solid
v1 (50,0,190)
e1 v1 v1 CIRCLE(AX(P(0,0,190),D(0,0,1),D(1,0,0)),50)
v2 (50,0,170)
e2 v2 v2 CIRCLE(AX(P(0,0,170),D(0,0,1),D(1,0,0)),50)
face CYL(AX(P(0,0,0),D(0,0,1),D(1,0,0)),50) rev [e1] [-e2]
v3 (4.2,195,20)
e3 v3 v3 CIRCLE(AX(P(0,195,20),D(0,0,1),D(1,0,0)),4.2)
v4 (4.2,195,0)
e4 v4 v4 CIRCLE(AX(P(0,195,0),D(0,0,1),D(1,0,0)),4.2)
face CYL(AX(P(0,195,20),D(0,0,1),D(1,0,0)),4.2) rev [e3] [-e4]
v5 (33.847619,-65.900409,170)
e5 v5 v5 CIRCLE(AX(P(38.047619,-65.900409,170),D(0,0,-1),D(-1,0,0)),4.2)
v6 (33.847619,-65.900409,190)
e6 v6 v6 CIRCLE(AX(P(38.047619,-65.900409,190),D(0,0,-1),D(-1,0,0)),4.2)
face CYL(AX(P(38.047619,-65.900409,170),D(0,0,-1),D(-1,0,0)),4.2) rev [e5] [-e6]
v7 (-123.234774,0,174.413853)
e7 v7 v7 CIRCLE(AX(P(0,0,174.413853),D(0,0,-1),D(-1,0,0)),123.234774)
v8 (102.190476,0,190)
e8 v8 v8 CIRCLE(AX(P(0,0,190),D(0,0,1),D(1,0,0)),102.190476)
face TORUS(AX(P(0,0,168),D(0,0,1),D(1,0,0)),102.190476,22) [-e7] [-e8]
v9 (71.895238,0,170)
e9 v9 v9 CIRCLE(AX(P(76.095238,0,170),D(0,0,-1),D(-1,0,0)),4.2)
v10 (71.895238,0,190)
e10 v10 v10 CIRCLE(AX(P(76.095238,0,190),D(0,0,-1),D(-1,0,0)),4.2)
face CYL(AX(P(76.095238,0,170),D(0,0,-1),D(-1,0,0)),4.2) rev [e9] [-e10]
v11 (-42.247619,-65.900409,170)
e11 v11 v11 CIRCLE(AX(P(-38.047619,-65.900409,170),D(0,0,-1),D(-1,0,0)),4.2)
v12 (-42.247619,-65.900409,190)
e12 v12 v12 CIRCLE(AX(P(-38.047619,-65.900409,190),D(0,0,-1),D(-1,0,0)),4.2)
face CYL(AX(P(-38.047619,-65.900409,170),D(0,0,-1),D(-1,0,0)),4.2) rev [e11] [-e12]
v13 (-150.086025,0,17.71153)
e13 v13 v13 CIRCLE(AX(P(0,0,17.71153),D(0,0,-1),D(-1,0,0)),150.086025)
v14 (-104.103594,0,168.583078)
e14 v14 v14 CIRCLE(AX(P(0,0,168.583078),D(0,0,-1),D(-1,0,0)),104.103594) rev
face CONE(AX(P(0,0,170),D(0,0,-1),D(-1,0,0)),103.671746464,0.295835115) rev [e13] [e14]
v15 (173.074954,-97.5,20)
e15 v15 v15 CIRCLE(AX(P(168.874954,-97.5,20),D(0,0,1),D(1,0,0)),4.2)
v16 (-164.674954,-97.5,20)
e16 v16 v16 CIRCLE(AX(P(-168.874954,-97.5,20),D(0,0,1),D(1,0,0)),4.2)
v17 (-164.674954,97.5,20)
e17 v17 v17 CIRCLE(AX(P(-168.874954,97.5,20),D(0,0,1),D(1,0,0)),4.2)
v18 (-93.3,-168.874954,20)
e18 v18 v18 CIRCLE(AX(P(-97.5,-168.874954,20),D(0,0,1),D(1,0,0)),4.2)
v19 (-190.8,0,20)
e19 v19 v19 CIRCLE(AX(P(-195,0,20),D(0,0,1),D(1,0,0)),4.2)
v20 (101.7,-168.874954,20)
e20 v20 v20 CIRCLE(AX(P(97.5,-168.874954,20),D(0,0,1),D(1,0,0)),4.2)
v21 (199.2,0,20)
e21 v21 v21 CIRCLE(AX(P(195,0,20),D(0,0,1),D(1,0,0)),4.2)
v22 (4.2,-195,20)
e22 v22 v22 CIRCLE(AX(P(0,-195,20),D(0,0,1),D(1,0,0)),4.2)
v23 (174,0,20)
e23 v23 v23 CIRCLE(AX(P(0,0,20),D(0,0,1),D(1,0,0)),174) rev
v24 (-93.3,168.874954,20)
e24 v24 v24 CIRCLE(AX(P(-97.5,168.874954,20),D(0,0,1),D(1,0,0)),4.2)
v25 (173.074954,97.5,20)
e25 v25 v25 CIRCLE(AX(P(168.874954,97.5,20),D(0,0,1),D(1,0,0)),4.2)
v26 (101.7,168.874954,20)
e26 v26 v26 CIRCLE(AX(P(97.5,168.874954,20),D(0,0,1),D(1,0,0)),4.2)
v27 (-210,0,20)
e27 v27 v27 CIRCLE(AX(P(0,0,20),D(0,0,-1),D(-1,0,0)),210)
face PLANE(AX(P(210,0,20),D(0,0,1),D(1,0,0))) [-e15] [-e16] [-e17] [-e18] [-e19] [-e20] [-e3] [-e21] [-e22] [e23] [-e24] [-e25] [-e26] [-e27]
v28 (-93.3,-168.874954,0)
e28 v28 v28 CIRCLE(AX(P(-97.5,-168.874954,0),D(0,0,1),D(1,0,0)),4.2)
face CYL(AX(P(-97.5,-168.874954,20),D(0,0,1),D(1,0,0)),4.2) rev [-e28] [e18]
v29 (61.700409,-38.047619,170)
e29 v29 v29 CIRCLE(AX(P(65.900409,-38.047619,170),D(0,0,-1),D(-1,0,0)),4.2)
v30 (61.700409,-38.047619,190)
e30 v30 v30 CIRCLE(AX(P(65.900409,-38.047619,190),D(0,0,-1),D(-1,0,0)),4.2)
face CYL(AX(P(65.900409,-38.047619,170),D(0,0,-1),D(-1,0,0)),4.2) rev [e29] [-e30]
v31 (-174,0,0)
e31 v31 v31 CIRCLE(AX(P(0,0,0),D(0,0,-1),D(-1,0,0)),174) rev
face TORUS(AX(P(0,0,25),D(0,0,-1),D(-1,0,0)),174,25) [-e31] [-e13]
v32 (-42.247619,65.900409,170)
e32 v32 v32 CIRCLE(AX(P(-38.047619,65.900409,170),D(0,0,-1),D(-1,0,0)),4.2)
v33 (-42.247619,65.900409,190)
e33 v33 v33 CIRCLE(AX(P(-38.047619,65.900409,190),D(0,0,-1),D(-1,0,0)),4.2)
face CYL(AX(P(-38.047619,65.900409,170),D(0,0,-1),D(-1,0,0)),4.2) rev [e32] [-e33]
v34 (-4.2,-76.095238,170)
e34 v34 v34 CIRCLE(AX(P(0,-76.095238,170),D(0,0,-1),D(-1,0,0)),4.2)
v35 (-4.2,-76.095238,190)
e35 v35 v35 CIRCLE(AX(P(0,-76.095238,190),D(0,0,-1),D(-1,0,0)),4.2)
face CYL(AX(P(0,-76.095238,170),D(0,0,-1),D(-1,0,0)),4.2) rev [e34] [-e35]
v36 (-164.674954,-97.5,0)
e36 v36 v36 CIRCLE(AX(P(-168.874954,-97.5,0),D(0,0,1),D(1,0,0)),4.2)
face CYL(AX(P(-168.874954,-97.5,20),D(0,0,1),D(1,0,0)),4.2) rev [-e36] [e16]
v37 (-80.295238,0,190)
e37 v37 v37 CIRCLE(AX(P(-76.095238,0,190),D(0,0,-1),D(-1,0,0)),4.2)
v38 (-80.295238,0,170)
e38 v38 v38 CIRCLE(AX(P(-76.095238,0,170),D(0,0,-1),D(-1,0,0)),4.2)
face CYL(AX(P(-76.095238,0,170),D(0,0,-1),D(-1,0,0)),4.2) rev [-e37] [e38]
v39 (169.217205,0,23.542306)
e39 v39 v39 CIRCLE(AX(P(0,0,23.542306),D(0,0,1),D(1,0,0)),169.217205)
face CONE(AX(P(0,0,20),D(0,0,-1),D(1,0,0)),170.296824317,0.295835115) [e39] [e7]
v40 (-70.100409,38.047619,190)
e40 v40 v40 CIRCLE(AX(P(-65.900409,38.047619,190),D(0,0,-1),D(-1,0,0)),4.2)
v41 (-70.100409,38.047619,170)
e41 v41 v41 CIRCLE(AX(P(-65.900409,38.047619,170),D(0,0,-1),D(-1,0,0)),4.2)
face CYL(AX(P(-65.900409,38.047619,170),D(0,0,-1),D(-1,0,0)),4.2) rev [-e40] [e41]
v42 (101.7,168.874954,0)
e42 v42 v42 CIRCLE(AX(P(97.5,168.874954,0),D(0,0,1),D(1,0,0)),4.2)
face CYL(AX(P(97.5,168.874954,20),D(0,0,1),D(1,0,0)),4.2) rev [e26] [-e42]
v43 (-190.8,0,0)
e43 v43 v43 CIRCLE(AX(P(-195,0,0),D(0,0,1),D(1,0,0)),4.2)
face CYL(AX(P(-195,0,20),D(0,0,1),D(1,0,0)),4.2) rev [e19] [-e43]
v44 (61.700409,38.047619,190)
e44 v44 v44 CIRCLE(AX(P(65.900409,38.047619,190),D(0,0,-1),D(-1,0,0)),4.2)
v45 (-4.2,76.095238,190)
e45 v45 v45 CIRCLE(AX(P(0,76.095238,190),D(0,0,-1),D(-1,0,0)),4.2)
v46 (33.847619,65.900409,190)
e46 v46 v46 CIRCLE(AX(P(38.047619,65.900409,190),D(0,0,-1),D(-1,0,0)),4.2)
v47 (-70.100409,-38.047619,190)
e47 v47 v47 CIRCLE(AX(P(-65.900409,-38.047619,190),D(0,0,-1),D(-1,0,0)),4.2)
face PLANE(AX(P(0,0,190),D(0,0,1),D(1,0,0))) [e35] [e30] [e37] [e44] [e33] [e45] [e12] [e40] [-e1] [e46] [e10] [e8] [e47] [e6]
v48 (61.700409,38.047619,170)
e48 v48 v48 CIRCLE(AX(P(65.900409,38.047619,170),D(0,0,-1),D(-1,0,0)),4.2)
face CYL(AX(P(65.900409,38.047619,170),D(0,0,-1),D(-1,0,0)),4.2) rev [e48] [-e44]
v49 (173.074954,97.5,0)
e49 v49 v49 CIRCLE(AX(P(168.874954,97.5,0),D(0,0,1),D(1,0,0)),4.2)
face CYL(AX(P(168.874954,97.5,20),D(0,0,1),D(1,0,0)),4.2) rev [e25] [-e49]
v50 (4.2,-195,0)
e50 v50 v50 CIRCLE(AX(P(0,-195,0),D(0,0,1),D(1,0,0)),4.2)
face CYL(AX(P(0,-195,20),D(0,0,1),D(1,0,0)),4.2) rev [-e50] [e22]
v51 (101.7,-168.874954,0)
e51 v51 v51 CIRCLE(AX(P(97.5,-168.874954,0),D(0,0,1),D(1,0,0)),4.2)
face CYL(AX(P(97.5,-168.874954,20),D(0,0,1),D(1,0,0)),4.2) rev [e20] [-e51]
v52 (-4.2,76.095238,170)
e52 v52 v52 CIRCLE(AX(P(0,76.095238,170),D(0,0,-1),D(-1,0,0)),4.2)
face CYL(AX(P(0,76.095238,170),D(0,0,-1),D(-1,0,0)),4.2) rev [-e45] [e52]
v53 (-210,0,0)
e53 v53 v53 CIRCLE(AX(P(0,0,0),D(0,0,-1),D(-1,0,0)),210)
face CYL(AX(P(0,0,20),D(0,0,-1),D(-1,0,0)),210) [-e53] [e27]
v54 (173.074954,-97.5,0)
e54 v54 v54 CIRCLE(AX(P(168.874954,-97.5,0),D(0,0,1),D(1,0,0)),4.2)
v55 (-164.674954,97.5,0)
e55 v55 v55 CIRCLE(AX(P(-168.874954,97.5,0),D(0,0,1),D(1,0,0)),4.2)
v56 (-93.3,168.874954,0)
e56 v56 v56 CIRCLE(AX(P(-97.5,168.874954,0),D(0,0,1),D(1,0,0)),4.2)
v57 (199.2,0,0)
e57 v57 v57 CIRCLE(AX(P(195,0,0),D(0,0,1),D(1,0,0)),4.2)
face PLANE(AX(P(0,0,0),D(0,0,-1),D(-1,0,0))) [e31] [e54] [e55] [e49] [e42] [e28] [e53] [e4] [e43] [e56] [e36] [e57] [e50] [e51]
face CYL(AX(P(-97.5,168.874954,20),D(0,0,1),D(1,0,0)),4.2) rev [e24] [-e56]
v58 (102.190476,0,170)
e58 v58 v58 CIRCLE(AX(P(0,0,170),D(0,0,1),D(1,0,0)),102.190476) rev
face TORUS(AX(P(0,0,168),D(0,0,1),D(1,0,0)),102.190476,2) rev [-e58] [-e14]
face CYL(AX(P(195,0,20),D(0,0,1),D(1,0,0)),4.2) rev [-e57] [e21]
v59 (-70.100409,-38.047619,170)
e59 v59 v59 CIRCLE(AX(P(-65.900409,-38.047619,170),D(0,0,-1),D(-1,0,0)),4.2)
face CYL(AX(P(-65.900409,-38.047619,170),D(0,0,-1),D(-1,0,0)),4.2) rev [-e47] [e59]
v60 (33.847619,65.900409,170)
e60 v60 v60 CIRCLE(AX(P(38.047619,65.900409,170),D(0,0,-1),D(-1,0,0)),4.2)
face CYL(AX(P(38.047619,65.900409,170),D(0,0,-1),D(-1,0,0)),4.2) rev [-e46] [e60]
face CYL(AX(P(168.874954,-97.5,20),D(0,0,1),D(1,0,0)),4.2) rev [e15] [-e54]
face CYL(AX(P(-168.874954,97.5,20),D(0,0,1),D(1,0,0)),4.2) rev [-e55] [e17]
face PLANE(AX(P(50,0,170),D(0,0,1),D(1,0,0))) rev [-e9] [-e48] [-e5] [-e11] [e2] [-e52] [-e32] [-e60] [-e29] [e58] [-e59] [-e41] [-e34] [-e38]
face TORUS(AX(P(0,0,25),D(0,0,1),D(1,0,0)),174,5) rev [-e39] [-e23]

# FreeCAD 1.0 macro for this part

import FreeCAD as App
import Part
import Sketcher


def edges_at(feature, points):
    """Names of the edges that pass closest to the given points."""
    edges = feature.Shape.Edges
    near = lambda p: min(range(len(edges)), key=lambda i: edges[i].distToShape(Part.Vertex(*p))[0])
    return sorted({f"Edge{near(p) + 1}" for p in points})

doc = App.newDocument("Part")
body = doc.addObject("PartDesign::Body", "Body")

# Sketch on XZ plane
sketch1 = body.newObject("Sketcher::SketchObject", "Sketch")
sketch1.AttachmentSupport = (doc.getObject("XZ_Plane"), [""])
sketch1.MapMode = "FlatFace"
sketch1.addGeometry([
    Part.LineSegment(App.Vector(0, 20, 0), App.Vector(0, 0, 0)),
    Part.LineSegment(App.Vector(0, 0, 0), App.Vector(210, 0, 0)),
    Part.LineSegment(App.Vector(210, 0, 0), App.Vector(210, 20, 0)),
    Part.LineSegment(App.Vector(210, 20, 0), App.Vector(0, 20, 0)),
], False)
sketch1.addConstraint([
    Sketcher.Constraint("Coincident", 0, 2, 1, 1),
    Sketcher.Constraint("Coincident", 1, 2, 2, 1),
    Sketcher.Constraint("Coincident", 2, 2, 3, 1),
    Sketcher.Constraint("Coincident", 3, 2, 0, 1),
    Sketcher.Constraint("Vertical", 0),
    Sketcher.Constraint("Horizontal", 1),
    Sketcher.Constraint("Vertical", 2),
    Sketcher.Constraint("Horizontal", 3),
    Sketcher.Constraint("Coincident", 0, 2, -1, 1),
    Sketcher.Constraint("DistanceX", 1, 1, 1, 2, 210.0),
    Sketcher.Constraint("DistanceY", 0, 2, 0, 1, 20.0),
])
revolution = body.newObject("PartDesign::Revolution", "Revolution")
revolution.Profile = sketch1
revolution.ReferenceAxis = (sketch1, ["V_Axis"])
revolution.Angle = 360

# Sketch on XY plane
sketch2 = body.newObject("Sketcher::SketchObject", "Sketch001")
sketch2.AttachmentSupport = (doc.getObject("XY_Plane"), [""])
sketch2.MapMode = "FlatFace"
sketch2.AttachmentOffset = App.Placement(App.Vector(0, 0, 20), App.Rotation())
sketch2.addGeometry(Part.Circle(App.Vector(0, 0, 0), App.Vector(0, 0, 1), 170), False)
sketch2.addConstraint([
    Sketcher.Constraint("Coincident", 0, 3, -1, 1),
    Sketcher.Constraint("Diameter", 0, 340.593649),
])
pad1 = body.newObject("PartDesign::Pad", "Pad")
pad1.Profile = sketch2
pad1.Length = 170
pad1.TaperAngle = -16.950104

# Sketch on XZ plane
sketch3 = body.newObject("Sketcher::SketchObject", "Sketch002")
sketch3.AttachmentSupport = (doc.getObject("XZ_Plane"), [""])
sketch3.MapMode = "FlatFace"
sketch3.addGeometry([
    Part.LineSegment(App.Vector(155, 0, 0), App.Vector(0, 0, 0)),  # 0
    Part.LineSegment(App.Vector(0, 0, 0), App.Vector(0, 190, 0)),  # 1
    Part.LineSegment(App.Vector(0, 190, 0), App.Vector(50, 190, 0)),  # 2
    Part.LineSegment(App.Vector(50, 190, 0), App.Vector(50, 170, 0)),  # 3
    Part.LineSegment(App.Vector(50, 170, 0), App.Vector(104, 170, 0)),  # 4
    Part.LineSegment(App.Vector(104, 170, 0), App.Vector(155, 0, 0)),  # 5
], False)
sketch3.addConstraint([
    Sketcher.Constraint("Coincident", 0, 2, 1, 1),
    Sketcher.Constraint("Coincident", 1, 2, 2, 1),
    Sketcher.Constraint("Coincident", 2, 2, 3, 1),
    Sketcher.Constraint("Coincident", 3, 2, 4, 1),
    Sketcher.Constraint("Coincident", 4, 2, 5, 1),
    Sketcher.Constraint("Coincident", 5, 2, 0, 1),
    Sketcher.Constraint("Horizontal", 0),
    Sketcher.Constraint("Vertical", 1),
    Sketcher.Constraint("Horizontal", 2),
    Sketcher.Constraint("Vertical", 3),
    Sketcher.Constraint("Horizontal", 4),
    Sketcher.Constraint("Coincident", 0, 2, -1, 1),
    Sketcher.Constraint("DistanceX", 2, 1, 2, 2, 50.0),
    Sketcher.Constraint("DistanceY", 1, 1, 1, 2, 190.0),
    Sketcher.Constraint("DistanceY", 3, 2, 3, 1, 20.0),
    Sketcher.Constraint("DistanceX", 0, 2, 0, 1, 155.484122),
    Sketcher.Constraint("Distance", 5, 177.720348),
])
groove = body.newObject("PartDesign::Groove", "Groove")
groove.Profile = sketch3
groove.ReferenceAxis = (sketch3, ["V_Axis"])
groove.Angle = 360

# Sketch on XY plane
sketch4 = body.newObject("Sketcher::SketchObject", "Sketch003")
sketch4.AttachmentSupport = (doc.getObject("XY_Plane"), [""])
sketch4.MapMode = "FlatFace"
sketch4.AttachmentOffset = App.Placement(App.Vector(0, 0, 20), App.Rotation())
sketch4.addGeometry([
    Part.Circle(App.Vector(0, 195, 0), App.Vector(0, 0, 1), 4.2),  # 0
    Part.Circle(App.Vector(97.5, 168.9, 0), App.Vector(0, 0, 1), 4.2),  # 1
    Part.Circle(App.Vector(168.9, 97.5, 0), App.Vector(0, 0, 1), 4.2),  # 2
    Part.Circle(App.Vector(195, 0, 0), App.Vector(0, 0, 1), 4.2),  # 3
    Part.Circle(App.Vector(168.9, -97.5, 0), App.Vector(0, 0, 1), 4.2),  # 4
    Part.Circle(App.Vector(97.5, -168.9, 0), App.Vector(0, 0, 1), 4.2),  # 5
    Part.Circle(App.Vector(0, -195, 0), App.Vector(0, 0, 1), 4.2),  # 6
    Part.Circle(App.Vector(-97.5, -168.9, 0), App.Vector(0, 0, 1), 4.2),  # 7
    Part.Circle(App.Vector(-168.9, -97.5, 0), App.Vector(0, 0, 1), 4.2),  # 8
    Part.Circle(App.Vector(-195, 0, 0), App.Vector(0, 0, 1), 4.2),  # 9
    Part.Circle(App.Vector(-168.9, 97.5, 0), App.Vector(0, 0, 1), 4.2),  # 10
    Part.Circle(App.Vector(-97.5, 168.9, 0), App.Vector(0, 0, 1), 4.2),  # 11
], False)
sketch4.addConstraint([
    Sketcher.Constraint("Equal", 0, 1),
    Sketcher.Constraint("Equal", 1, 2),
    Sketcher.Constraint("Equal", 2, 3),
    Sketcher.Constraint("Equal", 3, 4),
    Sketcher.Constraint("Equal", 4, 5),
    Sketcher.Constraint("Equal", 5, 6),
    Sketcher.Constraint("Equal", 6, 7),
    Sketcher.Constraint("Equal", 7, 8),
    Sketcher.Constraint("Equal", 8, 9),
    Sketcher.Constraint("Equal", 9, 10),
    Sketcher.Constraint("Equal", 10, 11),
    Sketcher.Constraint("Symmetric", 0, 3, 6, 3, -1, 1),
    Sketcher.Constraint("Symmetric", 1, 3, 7, 3, -1, 1),
    Sketcher.Constraint("Symmetric", 2, 3, 8, 3, -1, 1),
    Sketcher.Constraint("Symmetric", 3, 3, 9, 3, -1, 1),
    Sketcher.Constraint("Symmetric", 4, 3, 10, 3, -1, 1),
    Sketcher.Constraint("Symmetric", 5, 3, 11, 3, -1, 1),
    Sketcher.Constraint("Symmetric", 5, 3, 7, 3, -2),
    Sketcher.Constraint("Symmetric", 4, 3, 8, 3, -2),
    Sketcher.Constraint("PointOnObject", 0, 3, -2),
    Sketcher.Constraint("PointOnObject", 3, 3, -1),
    Sketcher.Constraint("Diameter", 0, 8.4),
    Sketcher.Constraint("DistanceY", -1, 1, 0, 3, 195.0),
    Sketcher.Constraint("DistanceX", -1, 1, 3, 3, 195.0),
    Sketcher.Constraint("DistanceY", 4, 3, 2, 3, 195.0),
    Sketcher.Constraint("DistanceX", 7, 3, 5, 3, 195.0),
    Sketcher.Constraint("DistanceY", -1, 1, 1, 3, 168.874954),
    Sketcher.Constraint("DistanceX", -1, 1, 2, 3, 168.874954),
])
doc.recompute()
hole = body.newObject("PartDesign::Hole", "Hole")
hole.Profile = sketch4
hole.ThreadType = "None"
hole.Diameter = 8.4
hole.DepthType = "ThroughAll"

# Sketch on XY plane
sketch5 = body.newObject("Sketcher::SketchObject", "Sketch004")
sketch5.AttachmentSupport = (doc.getObject("XY_Plane"), [""])
sketch5.MapMode = "FlatFace"
sketch5.AttachmentOffset = App.Placement(App.Vector(0, 0, 170), App.Rotation())
sketch5.addGeometry([
    Part.Circle(App.Vector(0, 76.1, 0), App.Vector(0, 0, 1), 4.2),  # 0
    Part.Circle(App.Vector(-38, 65.9, 0), App.Vector(0, 0, 1), 4.2),  # 1
    Part.Circle(App.Vector(-65.9, 38, 0), App.Vector(0, 0, 1), 4.2),  # 2
    Part.Circle(App.Vector(-76.1, 0, 0), App.Vector(0, 0, 1), 4.2),  # 3
    Part.Circle(App.Vector(-65.9, -38, 0), App.Vector(0, 0, 1), 4.2),  # 4
    Part.Circle(App.Vector(-38, -65.9, 0), App.Vector(0, 0, 1), 4.2),  # 5
    Part.Circle(App.Vector(0, -76.1, 0), App.Vector(0, 0, 1), 4.2),  # 6
    Part.Circle(App.Vector(38, -65.9, 0), App.Vector(0, 0, 1), 4.2),  # 7
    Part.Circle(App.Vector(65.9, -38, 0), App.Vector(0, 0, 1), 4.2),  # 8
    Part.Circle(App.Vector(76.1, 0, 0), App.Vector(0, 0, 1), 4.2),  # 9
    Part.Circle(App.Vector(65.9, 38, 0), App.Vector(0, 0, 1), 4.2),  # 10
    Part.Circle(App.Vector(38, 65.9, 0), App.Vector(0, 0, 1), 4.2),  # 11
], False)
sketch5.addConstraint([
    Sketcher.Constraint("Equal", 0, 1),
    Sketcher.Constraint("Equal", 1, 2),
    Sketcher.Constraint("Equal", 2, 3),
    Sketcher.Constraint("Equal", 3, 4),
    Sketcher.Constraint("Equal", 4, 5),
    Sketcher.Constraint("Equal", 5, 6),
    Sketcher.Constraint("Equal", 6, 7),
    Sketcher.Constraint("Equal", 7, 8),
    Sketcher.Constraint("Equal", 8, 9),
    Sketcher.Constraint("Equal", 9, 10),
    Sketcher.Constraint("Equal", 10, 11),
    Sketcher.Constraint("Symmetric", 0, 3, 6, 3, -1, 1),
    Sketcher.Constraint("Symmetric", 1, 3, 7, 3, -1, 1),
    Sketcher.Constraint("Symmetric", 2, 3, 8, 3, -1, 1),
    Sketcher.Constraint("Symmetric", 3, 3, 9, 3, -1, 1),
    Sketcher.Constraint("Symmetric", 4, 3, 10, 3, -1, 1),
    Sketcher.Constraint("Symmetric", 5, 3, 11, 3, -1, 1),
    Sketcher.Constraint("Symmetric", 5, 3, 7, 3, -2),
    Sketcher.Constraint("Symmetric", 4, 3, 8, 3, -2),
    Sketcher.Constraint("PointOnObject", 0, 3, -2),
    Sketcher.Constraint("PointOnObject", 3, 3, -1),
    Sketcher.Constraint("Diameter", 0, 8.4),
    Sketcher.Constraint("DistanceY", -1, 1, 0, 3, 76.095238),
    Sketcher.Constraint("DistanceX", 1, 3, -1, 1, 38.047619),
    Sketcher.Constraint("DistanceY", -1, 1, 1, 3, 65.900409),
    Sketcher.Constraint("DistanceX", 2, 3, -1, 1, 65.900409),
    Sketcher.Constraint("DistanceY", -1, 1, 2, 3, 38.047619),
    Sketcher.Constraint("DistanceX", 3, 3, -1, 1, 76.095238),
])
doc.recompute()
hole2 = body.newObject("PartDesign::Hole", "Hole001")
hole2.Profile = sketch5
hole2.ThreadType = "None"
hole2.Diameter = 8.4
hole2.DepthType = "ThroughAll"
hole2.Reversed = True
doc.recompute()

fillet = body.newObject("PartDesign::Fillet", "Fillet")
fillet.Base = (hole2, edges_at(hole2, [(-103.672, 0, 170)]))
fillet.Radius = 2
doc.recompute()

fillet2 = body.newObject("PartDesign::Fillet", "Fillet001")
fillet2.Base = (fillet, edges_at(fillet, [(-170.297, 0, 20)]))
fillet2.Radius = 5
doc.recompute()

fillet3 = body.newObject("PartDesign::Fillet", "Fillet002")
fillet3.Base = (fillet2, edges_at(fillet2, [(-118.484, 0, 190)]))
fillet3.Radius = 22
doc.recompute()

fillet4 = body.newObject("PartDesign::Fillet", "Fillet003")
fillet4.Base = (fillet3, edges_at(fillet3, [(-155.484, 0, 0)]))
fillet4.Radius = 25

doc.recompute()
